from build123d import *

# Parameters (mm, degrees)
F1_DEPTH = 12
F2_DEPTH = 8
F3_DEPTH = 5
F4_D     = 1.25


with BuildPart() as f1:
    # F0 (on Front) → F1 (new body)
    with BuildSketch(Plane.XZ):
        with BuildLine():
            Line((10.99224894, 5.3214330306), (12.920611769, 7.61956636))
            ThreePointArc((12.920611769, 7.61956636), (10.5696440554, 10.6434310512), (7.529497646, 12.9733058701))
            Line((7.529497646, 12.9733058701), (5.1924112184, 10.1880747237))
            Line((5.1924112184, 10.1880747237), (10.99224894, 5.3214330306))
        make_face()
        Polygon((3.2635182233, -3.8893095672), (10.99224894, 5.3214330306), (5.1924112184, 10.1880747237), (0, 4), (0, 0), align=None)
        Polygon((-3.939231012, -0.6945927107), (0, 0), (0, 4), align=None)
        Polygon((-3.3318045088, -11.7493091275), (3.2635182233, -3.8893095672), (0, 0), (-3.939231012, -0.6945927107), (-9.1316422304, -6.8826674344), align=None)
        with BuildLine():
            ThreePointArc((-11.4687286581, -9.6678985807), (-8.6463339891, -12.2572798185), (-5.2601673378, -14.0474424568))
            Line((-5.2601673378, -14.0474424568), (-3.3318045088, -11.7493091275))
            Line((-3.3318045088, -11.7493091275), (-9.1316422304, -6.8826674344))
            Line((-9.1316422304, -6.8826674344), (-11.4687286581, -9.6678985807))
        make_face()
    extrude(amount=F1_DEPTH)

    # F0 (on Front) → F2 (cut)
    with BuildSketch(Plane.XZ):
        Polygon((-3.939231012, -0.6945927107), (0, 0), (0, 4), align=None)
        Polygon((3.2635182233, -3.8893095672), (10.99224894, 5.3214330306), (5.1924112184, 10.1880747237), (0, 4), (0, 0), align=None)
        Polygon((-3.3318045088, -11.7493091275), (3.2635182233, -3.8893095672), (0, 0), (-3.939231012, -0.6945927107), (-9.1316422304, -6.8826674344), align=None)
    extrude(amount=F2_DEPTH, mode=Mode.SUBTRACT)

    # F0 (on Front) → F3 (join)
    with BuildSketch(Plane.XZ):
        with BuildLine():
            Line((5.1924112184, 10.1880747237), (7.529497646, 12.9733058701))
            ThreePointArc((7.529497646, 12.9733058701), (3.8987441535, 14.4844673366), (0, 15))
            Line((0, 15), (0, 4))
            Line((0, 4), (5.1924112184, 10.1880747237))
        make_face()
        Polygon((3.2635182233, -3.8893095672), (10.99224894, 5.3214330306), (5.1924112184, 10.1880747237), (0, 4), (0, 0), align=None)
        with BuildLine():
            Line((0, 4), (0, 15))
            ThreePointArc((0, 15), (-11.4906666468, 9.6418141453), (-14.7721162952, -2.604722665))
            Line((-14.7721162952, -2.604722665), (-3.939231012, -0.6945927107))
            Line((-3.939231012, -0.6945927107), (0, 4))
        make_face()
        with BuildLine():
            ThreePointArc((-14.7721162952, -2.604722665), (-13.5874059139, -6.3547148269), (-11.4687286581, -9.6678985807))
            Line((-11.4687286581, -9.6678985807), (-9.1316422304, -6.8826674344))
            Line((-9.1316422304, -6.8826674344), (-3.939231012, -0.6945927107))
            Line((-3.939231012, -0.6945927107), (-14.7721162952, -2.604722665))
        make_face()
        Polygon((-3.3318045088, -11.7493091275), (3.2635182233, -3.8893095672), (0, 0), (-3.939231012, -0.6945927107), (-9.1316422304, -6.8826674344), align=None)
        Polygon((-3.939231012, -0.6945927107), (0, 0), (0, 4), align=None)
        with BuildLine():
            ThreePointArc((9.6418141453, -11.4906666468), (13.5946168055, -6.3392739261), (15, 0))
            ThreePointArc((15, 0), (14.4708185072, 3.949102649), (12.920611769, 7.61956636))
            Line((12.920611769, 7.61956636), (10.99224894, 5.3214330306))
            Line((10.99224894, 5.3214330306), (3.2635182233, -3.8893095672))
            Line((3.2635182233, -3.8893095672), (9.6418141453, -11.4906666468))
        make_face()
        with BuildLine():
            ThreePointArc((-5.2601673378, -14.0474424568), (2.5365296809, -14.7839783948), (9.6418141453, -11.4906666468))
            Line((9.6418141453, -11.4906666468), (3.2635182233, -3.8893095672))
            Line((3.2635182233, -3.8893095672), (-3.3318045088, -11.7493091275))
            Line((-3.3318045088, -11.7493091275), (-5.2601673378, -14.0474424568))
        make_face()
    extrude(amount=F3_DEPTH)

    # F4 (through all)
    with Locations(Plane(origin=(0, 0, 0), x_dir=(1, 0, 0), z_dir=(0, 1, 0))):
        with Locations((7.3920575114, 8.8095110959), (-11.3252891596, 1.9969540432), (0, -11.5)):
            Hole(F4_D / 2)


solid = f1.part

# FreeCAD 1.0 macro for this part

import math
import FreeCAD as App
import Part
import Sketcher

V = App.Vector
Q = App.Units.Quantity


def add_polygon(sketch, points):
    """Adds a closed chain of lines whose ends are joined by coincident constraints."""
    first, n = sketch.GeometryCount, len(points)
    for a, b in zip(points, points[1:] + points[:1]):
        sketch.addGeometry(Part.LineSegment(App.Vector(*a, 0), App.Vector(*b, 0)), False)
    for i in range(n):
        sketch.addConstraint(Sketcher.Constraint("Coincident", first + i, 2, first + (i + 1) % n, 1))

doc = App.newDocument("Part")
params = doc.addObject("Spreadsheet::Sheet", "Params")
for row, (alias, value) in enumerate([
    ("sketch1_radius", "15 mm"),
    ("sketch1_length", "3 mm"),
    ("pad1_length", "12 mm"),
    ("pocket1_length", "8 mm"),
    ("sketch3_radius", "15 mm"),
    ("sketch3_length", "3 mm"),
    ("pad2_length", "5 mm"),
    ("sketch4_diameter", "1.25 mm"),
    ("hole_diameter", "1.25 mm"),
], start=1):
    params.set(f"A{row}", alias)
    params.set(f"B{row}", "=" + value)
    params.setAlias(f"B{row}", alias)

body = doc.addObject("PartDesign::Body", "Body")

# Sketch on XZ plane
sketch1 = body.newObject("Sketcher::SketchObject", "Sketch")
sketch1.AttachmentSupport = (doc.getObject("XZ_Plane"), [""])
sketch1.MapMode = "FlatFace"
sketch1.addGeometry(Part.LineSegment(V(5.2, 10.2, 0), V(0, 4, 0)), False)
sketch1.addGeometry(Part.LineSegment(V(0, 4, 0), V(-3.9, -0.7, 0)), False)
sketch1.addGeometry(Part.LineSegment(V(-3.9, -0.7, 0), V(-9.1, -6.9, 0)), False)
sketch1.addGeometry(Part.LineSegment(V(-9.1, -6.9, 0), V(-11.5, -9.7, 0)), False)
sketch1.addGeometry(Part.ArcOfCircle(Part.Circle(V(0, 0, 0), V(0, 0, 1), 15), math.radians(-140), math.radians(-111)), False)
sketch1.addGeometry(Part.LineSegment(V(-5.3, -14, 0), V(-3.3, -11.7, 0)), False)
sketch1.addGeometry(Part.LineSegment(V(-3.3, -11.7, 0), V(3.3, -3.9, 0)), False)
sketch1.addGeometry(Part.LineSegment(V(3.3, -3.9, 0), V(11, 5.3, 0)), False)
sketch1.addGeometry(Part.LineSegment(V(11, 5.3, 0), V(12.9, 7.6, 0)), False)
sketch1.addGeometry(Part.ArcOfCircle(Part.Circle(V(0, 0, 0), V(0, 0, 1), 15), math.radians(31), math.radians(60)), False)
sketch1.addGeometry(Part.LineSegment(V(7.5, 13, 0), V(5.2, 10.2, 0)), False)
sketch1.addConstraint(Sketcher.Constraint("Coincident", 0, 2, 1, 1))
sketch1.addConstraint(Sketcher.Constraint("Coincident", 1, 2, 2, 1))
sketch1.addConstraint(Sketcher.Constraint("Coincident", 2, 2, 3, 1))
sketch1.addConstraint(Sketcher.Constraint("Coincident", 3, 2, 4, 1))
sketch1.addConstraint(Sketcher.Constraint("Coincident", 4, 2, 5, 1))
sketch1.addConstraint(Sketcher.Constraint("Coincident", 5, 2, 6, 1))
sketch1.addConstraint(Sketcher.Constraint("Coincident", 6, 2, 7, 1))
sketch1.addConstraint(Sketcher.Constraint("Coincident", 7, 2, 8, 1))
sketch1.addConstraint(Sketcher.Constraint("Coincident", 8, 2, 9, 1))
sketch1.addConstraint(Sketcher.Constraint("Coincident", 9, 2, 10, 1))
sketch1.addConstraint(Sketcher.Constraint("Coincident", 10, 2, 0, 1))
sketch1.addConstraint(Sketcher.Constraint("Coincident", 4, 3, -1, 1))
sketch1.addConstraint(Sketcher.Constraint("Coincident", 9, 3, -1, 1))
sketch1.addConstraint(Sketcher.Constraint("Equal", 4, 9))
sketch1.addConstraint(Sketcher.Constraint("PointOnObject", 0, 2, -2))
sketch1.addConstraint(Sketcher.Constraint("Parallel", 0, 1))
sketch1.addConstraint(Sketcher.Constraint("Parallel", 1, 2))
sketch1.addConstraint(Sketcher.Constraint("Parallel", 2, 3))
sketch1.addConstraint(Sketcher.Constraint("Parallel", 3, 5))
sketch1.addConstraint(Sketcher.Constraint("Parallel", 5, 6))
sketch1.addConstraint(Sketcher.Constraint("Parallel", 6, 7))
sketch1.addConstraint(Sketcher.Constraint("Parallel", 7, 8))
sketch1.addConstraint(Sketcher.Constraint("Parallel", 8, 10))
sketch1.addConstraint(Sketcher.Constraint("Equal", 0, 2))
sketch1.addConstraint(Sketcher.Constraint("Equal", 5, 8))
sketch1.addConstraint(Sketcher.Constraint("Equal", 3, 10))
sketch1.addConstraint(Sketcher.Constraint("Radius", 4, 15.0))
sketch1.addConstraint(Sketcher.Constraint("Angle", 0, Q("-130 deg")))
sketch1.addConstraint(Sketcher.Constraint("Distance", 5, 3.0))
sketch1.addConstraint(Sketcher.Constraint("DistanceY", -1, 1, 0, 2, 4.0))
sketch1.addConstraint(Sketcher.Constraint("DistanceY", 5, 2, 6, 2, 7.86))
sketch1.addConstraint(Sketcher.Constraint("DistanceX", 10, 2, 8, 2, 7.728201))
sketch1.addConstraint(Sketcher.Constraint("Distance", 3, 3.635861))
sketch1.setExpression("Constraints[26]", "Params.sketch1_radius")
sketch1.setExpression("Constraints[28]", "Params.sketch1_length")
pad1 = body.newObject("PartDesign::Pad", "Pad")
pad1.Profile = sketch1
pad1.setExpression("Length", "Params.pad1_length")

# Sketch on XZ plane
sketch2 = body.newObject("Sketcher::SketchObject", "Sketch001")
sketch2.AttachmentSupport = (doc.getObject("XZ_Plane"), [""])
sketch2.MapMode = "FlatFace"
add_polygon(sketch2, [(3, -4), (11, 5), (5, 10), (0, 4), (-4, -1), (-9, -7), (-3, -12)])  # lines 0-6
sketch2.addConstraint(Sketcher.Constraint("PointOnObject", 2, 2, -2))
sketch2.addConstraint(Sketcher.Constraint("Perpendicular", 0, 1))
sketch2.addConstraint(Sketcher.Constraint("Perpendicular", 1, 2))
sketch2.addConstraint(Sketcher.Constraint("Parallel", 2, 3))
sketch2.addConstraint(Sketcher.Constraint("Parallel", 3, 4))
sketch2.addConstraint(Sketcher.Constraint("Perpendicular", 4, 5))
sketch2.addConstraint(Sketcher.Constraint("Perpendicular", 5, 6))
sketch2.addConstraint(Sketcher.Constraint("Equal", 2, 4))
sketch2.addConstraint(Sketcher.Constraint("Angle", 0, Q("50 deg")))
sketch2.addConstraint(Sketcher.Constraint("DistanceY", -1, 1, 2, 2, 4.0))
sketch2.addConstraint(Sketcher.Constraint("DistanceY", 5, 2, 6, 2, 7.86))
sketch2.addConstraint(Sketcher.Constraint("DistanceY", 4, 2, 0, 2, 12.2041))
sketch2.addConstraint(Sketcher.Constraint("Distance", 0, 12.023771))
sketch2.addConstraint(Sketcher.Constraint("DistanceX", -1, 1, 0, 2, 10.992249))
pocket1 = body.newObject("PartDesign::Pocket", "Pocket")
pocket1.Profile = sketch2
pocket1.setExpression("Length", "Params.pocket1_length")
pocket1.Reversed = True

# Sketch on XZ plane
sketch3 = body.newObject("Sketcher::SketchObject", "Sketch002")
sketch3.AttachmentSupport = (doc.getObject("XZ_Plane"), [""])
sketch3.MapMode = "FlatFace"
sketch3.addGeometry(Part.LineSegment(V(5.2, 10.2, 0), V(7.5, 13, 0)), False)
sketch3.addGeometry(Part.ArcOfCircle(Part.Circle(V(0, 0, 0), V(0, 0, 1), 15), math.radians(60), math.radians(90)), False)
sketch3.addGeometry(Part.ArcOfCircle(Part.Circle(V(0, 0, 0), V(0, 0, 1), 15), math.radians(90), math.radians(220)), False)
sketch3.addGeometry(Part.LineSegment(V(-11.5, -9.7, 0), V(-9.1, -6.9, 0)), False)
sketch3.addGeometry(Part.LineSegment(V(-9.1, -6.9, 0), V(-3.3, -11.7, 0)), False)
sketch3.addGeometry(Part.LineSegment(V(-3.3, -11.7, 0), V(-5.3, -14, 0)), False)
sketch3.addGeometry(Part.ArcOfCircle(Part.Circle(V(0, 0, 0), V(0, 0, 1), 15), math.radians(-111), math.radians(-50)), False)
sketch3.addGeometry(Part.ArcOfCircle(Part.Circle(V(0, 0, 0), V(0, 0, 1), 15), math.radians(-50), math.radians(0)), False)
sketch3.addGeometry(Part.ArcOfCircle(Part.Circle(V(0, 0, 0), V(0, 0, 1), 15), math.radians(0), math.radians(31)), False)
sketch3.addGeometry(Part.LineSegment(V(12.9, 7.6, 0), V(11, 5.3, 0)), False)
sketch3.addGeometry(Part.LineSegment(V(11, 5.3, 0), V(5.2, 10.2, 0)), False)
sketch3.addConstraint(Sketcher.Constraint("Coincident", 0, 2, 1, 1))
sketch3.addConstraint(Sketcher.Constraint("Tangent", 1, 2, 2, 1))
sketch3.addConstraint(Sketcher.Constraint("Coincident", 2, 2, 3, 1))
sketch3.addConstraint(Sketcher.Constraint("Coincident", 3, 2, 4, 1))
sketch3.addConstraint(Sketcher.Constraint("Coincident", 4, 2, 5, 1))
sketch3.addConstraint(Sketcher.Constraint("Coincident", 5, 2, 6, 1))
sketch3.addConstraint(Sketcher.Constraint("Tangent", 6, 2, 7, 1))
sketch3.addConstraint(Sketcher.Constraint("Tangent", 7, 2, 8, 1))
sketch3.addConstraint(Sketcher.Constraint("Coincident", 8, 2, 9, 1))
sketch3.addConstraint(Sketcher.Constraint("Coincident", 9, 2, 10, 1))
sketch3.addConstraint(Sketcher.Constraint("Coincident", 10, 2, 0, 1))
sketch3.addConstraint(Sketcher.Constraint("Coincident", 1, 3, -1, 1))
sketch3.addConstraint(Sketcher.Constraint("Coincident", 6, 3, -1, 1))
sketch3.addConstraint(Sketcher.Constraint("Coincident", 8, 3, -1, 1))
sketch3.addConstraint(Sketcher.Constraint("Equal", 1, 2))
sketch3.addConstraint(Sketcher.Constraint("Equal", 2, 6))
sketch3.addConstraint(Sketcher.Constraint("PointOnObject", 1, 2, -2))
sketch3.addConstraint(Sketcher.Constraint("PointOnObject", 7, 2, -1))
sketch3.addConstraint(Sketcher.Constraint("Parallel", 0, 3))
sketch3.addConstraint(Sketcher.Constraint("Perpendicular", 3, 4))
sketch3.addConstraint(Sketcher.Constraint("Perpendicular", 4, 5))
sketch3.addConstraint(Sketcher.Constraint("Parallel", 5, 9))
sketch3.addConstraint(Sketcher.Constraint("Perpendicular", 9, 10))
sketch3.addConstraint(Sketcher.Constraint("Equal", 0, 3))
sketch3.addConstraint(Sketcher.Constraint("Equal", 5, 9))
sketch3.addConstraint(Sketcher.Constraint("Equal", 4, 10))
sketch3.addConstraint(Sketcher.Constraint("Radius", 1, 15.0))
sketch3.addConstraint(Sketcher.Constraint("Angle", 0, Q("50 deg")))
sketch3.addConstraint(Sketcher.Constraint("Distance", 5, 3.0))
sketch3.addConstraint(Sketcher.Constraint("DistanceY", 2, 2, -1, 1, 9.667899))
sketch3.addConstraint(Sketcher.Constraint("DistanceX", 10, 2, 8, 2, 7.728201))
sketch3.addConstraint(Sketcher.Constraint("DistanceX", 4, 2, 6, 2, 12.973619))
sketch3.setExpression("Constraints[26]", "Params.sketch3_radius")
sketch3.setExpression("Constraints[28]", "Params.sketch3_length")
pad2 = body.newObject("PartDesign::Pad", "Pad001")
pad2.Profile = sketch3
pad2.setExpression("Length", "Params.pad2_length")

# Sketch on XZ plane
sketch4 = body.newObject("Sketcher::SketchObject", "Sketch003")
sketch4.AttachmentSupport = (doc.getObject("XZ_Plane"), [""])
sketch4.MapMode = "FlatFace"
sketch4.addGeometry(Part.Circle(V(7.4, -8.8, 0), V(0, 0, 1), 0.6), False)
sketch4.addGeometry(Part.Circle(V(-11.3, -2, 0), V(0, 0, 1), 0.6), False)
sketch4.addGeometry(Part.Circle(V(0, 11.5, 0), V(0, 0, 1), 0.6), False)
sketch4.addConstraint(Sketcher.Constraint("Equal", 0, 1))
sketch4.addConstraint(Sketcher.Constraint("Equal", 1, 2))
sketch4.addConstraint(Sketcher.Constraint("PointOnObject", 2, 3, -2))
sketch4.addConstraint(Sketcher.Constraint("Diameter", 0, 1.25))
sketch4.addConstraint(Sketcher.Constraint("DistanceY", -1, 1, 2, 3, 11.5))
sketch4.addConstraint(Sketcher.Constraint("DistanceY", 0, 3, -1, 1, 8.809511))
sketch4.addConstraint(Sketcher.Constraint("DistanceX", 1, 3, -1, 1, 11.325289))
sketch4.addConstraint(Sketcher.Constraint("DistanceX", -1, 1, 0, 3, 7.392058))
sketch4.addConstraint(Sketcher.Constraint("DistanceY", 1, 3, -1, 1, 1.996954))
sketch4.setExpression("Constraints[3]", "Params.sketch4_diameter")
doc.recompute()
hole = body.newObject("PartDesign::Hole", "Hole")
hole.Profile = sketch4
hole.ThreadType = "None"
hole.setExpression("Diameter", "Params.hole_diameter")
hole.DepthType = "ThroughAll"
hole.Reversed = True

doc.recompute()
